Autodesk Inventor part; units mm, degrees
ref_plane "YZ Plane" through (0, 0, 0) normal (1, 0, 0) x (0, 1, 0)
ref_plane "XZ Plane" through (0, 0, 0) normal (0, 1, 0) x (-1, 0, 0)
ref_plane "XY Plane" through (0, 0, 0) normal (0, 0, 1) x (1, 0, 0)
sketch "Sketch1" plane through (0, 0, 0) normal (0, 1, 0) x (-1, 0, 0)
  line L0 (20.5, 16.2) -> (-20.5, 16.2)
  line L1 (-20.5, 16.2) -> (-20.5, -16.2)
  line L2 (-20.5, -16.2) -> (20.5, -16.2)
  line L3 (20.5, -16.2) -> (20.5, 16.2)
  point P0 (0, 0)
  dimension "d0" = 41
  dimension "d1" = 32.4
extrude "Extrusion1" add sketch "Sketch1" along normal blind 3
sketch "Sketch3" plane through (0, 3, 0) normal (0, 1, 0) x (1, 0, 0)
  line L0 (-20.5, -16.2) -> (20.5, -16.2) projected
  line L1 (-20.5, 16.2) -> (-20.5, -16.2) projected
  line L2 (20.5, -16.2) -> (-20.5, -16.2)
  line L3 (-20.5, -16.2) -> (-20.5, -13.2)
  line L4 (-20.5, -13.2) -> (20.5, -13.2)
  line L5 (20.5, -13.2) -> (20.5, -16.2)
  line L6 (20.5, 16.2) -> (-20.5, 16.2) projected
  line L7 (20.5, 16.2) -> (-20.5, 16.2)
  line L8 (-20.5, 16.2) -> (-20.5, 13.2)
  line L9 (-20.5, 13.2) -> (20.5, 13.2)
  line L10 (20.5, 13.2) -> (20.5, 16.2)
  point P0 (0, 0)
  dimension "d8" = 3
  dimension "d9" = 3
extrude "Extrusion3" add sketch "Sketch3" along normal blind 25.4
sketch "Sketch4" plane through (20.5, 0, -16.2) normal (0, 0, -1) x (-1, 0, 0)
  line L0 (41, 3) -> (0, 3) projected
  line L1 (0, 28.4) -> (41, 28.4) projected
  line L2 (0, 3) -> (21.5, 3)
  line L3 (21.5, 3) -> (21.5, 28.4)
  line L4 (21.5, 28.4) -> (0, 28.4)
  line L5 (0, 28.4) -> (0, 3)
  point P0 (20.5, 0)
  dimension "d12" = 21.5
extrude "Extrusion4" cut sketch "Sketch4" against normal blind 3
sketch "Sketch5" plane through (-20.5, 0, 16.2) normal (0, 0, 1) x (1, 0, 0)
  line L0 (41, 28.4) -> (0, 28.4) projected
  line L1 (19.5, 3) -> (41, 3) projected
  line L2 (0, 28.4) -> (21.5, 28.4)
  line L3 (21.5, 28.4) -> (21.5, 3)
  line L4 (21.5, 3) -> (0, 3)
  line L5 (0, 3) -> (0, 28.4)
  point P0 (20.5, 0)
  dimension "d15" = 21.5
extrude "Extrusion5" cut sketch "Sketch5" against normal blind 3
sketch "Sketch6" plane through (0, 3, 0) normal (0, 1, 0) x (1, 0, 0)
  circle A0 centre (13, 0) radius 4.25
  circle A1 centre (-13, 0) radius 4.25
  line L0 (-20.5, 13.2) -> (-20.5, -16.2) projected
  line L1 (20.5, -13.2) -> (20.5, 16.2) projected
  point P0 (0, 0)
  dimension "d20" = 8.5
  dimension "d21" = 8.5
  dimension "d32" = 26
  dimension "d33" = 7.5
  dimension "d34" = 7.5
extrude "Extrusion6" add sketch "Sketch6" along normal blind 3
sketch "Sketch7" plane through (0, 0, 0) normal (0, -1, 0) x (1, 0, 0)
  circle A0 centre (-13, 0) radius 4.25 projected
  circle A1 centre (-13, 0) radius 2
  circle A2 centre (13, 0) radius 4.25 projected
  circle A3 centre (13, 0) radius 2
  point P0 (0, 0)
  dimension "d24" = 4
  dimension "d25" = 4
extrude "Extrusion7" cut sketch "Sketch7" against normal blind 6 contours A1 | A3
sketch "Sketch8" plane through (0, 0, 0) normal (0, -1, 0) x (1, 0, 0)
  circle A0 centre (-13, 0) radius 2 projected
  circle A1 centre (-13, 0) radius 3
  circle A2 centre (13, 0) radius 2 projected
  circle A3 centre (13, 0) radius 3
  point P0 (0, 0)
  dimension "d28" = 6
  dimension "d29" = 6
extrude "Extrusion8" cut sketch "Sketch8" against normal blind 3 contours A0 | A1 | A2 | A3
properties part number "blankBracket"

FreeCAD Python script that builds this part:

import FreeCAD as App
import Part
import Sketcher

V = App.Vector
Q = App.Units.Quantity

doc = App.newDocument("Part")
body = doc.addObject("PartDesign::Body", "Body")

# Sketch on XZ plane
sketch1 = body.newObject("Sketcher::SketchObject", "Sketch")
sketch1.AttachmentSupport = (doc.getObject("XZ_Plane"), [""])
sketch1.MapMode = "FlatFace"
sketch1.addGeometry([
    Part.LineSegment(V(-20.5, -16.2, 0), V(-20.5, 16.2, 0)),
    Part.LineSegment(V(-20.5, 16.2, 0), V(20.5, 16.2, 0)),
    Part.LineSegment(V(20.5, 16.2, 0), V(20.5, -16.2, 0)),
    Part.LineSegment(V(20.5, -16.2, 0), V(-20.5, -16.2, 0)),
], False)
sketch1.addConstraint([
    Sketcher.Constraint("Coincident", 0, 2, 1, 1),
    Sketcher.Constraint("Coincident", 1, 2, 2, 1),
    Sketcher.Constraint("Coincident", 2, 2, 3, 1),
    Sketcher.Constraint("Coincident", 3, 2, 0, 1),
    Sketcher.Constraint("Vertical", 0),
    Sketcher.Constraint("Horizontal", 1),
    Sketcher.Constraint("Vertical", 2),
    Sketcher.Constraint("Horizontal", 3),
    Sketcher.Constraint("Symmetric", 0, 2, 2, 2, -1, 1),
    Sketcher.Constraint("DistanceX", 1, 1, 1, 2, Q("41 mm")),
    Sketcher.Constraint("DistanceY", 0, 1, 0, 2, Q("32.4 mm")),
])
pad1 = body.newObject("PartDesign::Pad", "Pad")
pad1.Profile = sketch1
pad1.Length = 3
pad1.Reversed = True

# Sketch on XZ plane
sketch2 = body.newObject("Sketcher::SketchObject", "Sketch001")
sketch2.AttachmentSupport = (doc.getObject("XZ_Plane"), [""])
sketch2.MapMode = "FlatFace"
sketch2.AttachmentOffset = App.Placement(V(0, 0, -3), App.Rotation())
sketch2.addGeometry([
    Part.LineSegment(V(-20.5, 13.2, 0), V(-20.5, 16.2, 0)),  # 0
    Part.LineSegment(V(-20.5, 16.2, 0), V(20.5, 16.2, 0)),  # 1
    Part.LineSegment(V(20.5, 16.2, 0), V(20.5, 13.2, 0)),  # 2
    Part.LineSegment(V(20.5, 13.2, 0), V(-20.5, 13.2, 0)),  # 3
    Part.LineSegment(V(-20.5, -16.2, 0), V(-20.5, -13.2, 0)),  # 4
    Part.LineSegment(V(-20.5, -13.2, 0), V(20.5, -13.2, 0)),  # 5
    Part.LineSegment(V(20.5, -13.2, 0), V(20.5, -16.2, 0)),  # 6
    Part.LineSegment(V(20.5, -16.2, 0), V(-20.5, -16.2, 0)),  # 7
], False)
sketch2.addConstraint([
    Sketcher.Constraint("Coincident", 0, 2, 1, 1),
    Sketcher.Constraint("Coincident", 1, 2, 2, 1),
    Sketcher.Constraint("Coincident", 2, 2, 3, 1),
    Sketcher.Constraint("Coincident", 3, 2, 0, 1),
    Sketcher.Constraint("Coincident", 4, 2, 5, 1),
    Sketcher.Constraint("Coincident", 5, 2, 6, 1),
    Sketcher.Constraint("Coincident", 6, 2, 7, 1),
    Sketcher.Constraint("Coincident", 7, 2, 4, 1),
    Sketcher.Constraint("Vertical", 0),
    Sketcher.Constraint("Horizontal", 1),
    Sketcher.Constraint("Vertical", 2),
    Sketcher.Constraint("Horizontal", 3),
    Sketcher.Constraint("Vertical", 4),
    Sketcher.Constraint("Horizontal", 5),
    Sketcher.Constraint("Vertical", 6),
    Sketcher.Constraint("Horizontal", 7),
    Sketcher.Constraint("Symmetric", 2, 2, 4, 2, -1, 1),
    Sketcher.Constraint("Symmetric", 0, 2, 6, 2, -1, 1),
    Sketcher.Constraint("Vertical", 3, 2, 4, 2),
    Sketcher.Constraint("DistanceY", 0, 1, 0, 2, Q("3 mm")),
    Sketcher.Constraint("DistanceX", 1, 1, 1, 2, Q("41 mm")),
    Sketcher.Constraint("DistanceY", -1, 1, 0, 2, Q("16.2 mm")),
])
pad2 = body.newObject("PartDesign::Pad", "Pad001")
pad2.Profile = sketch2
pad2.Length = 25.4
pad2.Reversed = True

# Sketch on XY plane
sketch3 = body.newObject("Sketcher::SketchObject", "Sketch002")
sketch3.AttachmentSupport = (doc.getObject("XY_Plane"), [""])
sketch3.MapMode = "FlatFace"
sketch3.AttachmentOffset = App.Placement(V(0, 0, -16.2), App.Rotation())
sketch3.addGeometry([
    Part.LineSegment(V(20.5, 3, 0), V(-1, 3, 0)),
    Part.LineSegment(V(-1, 3, 0), V(-1, 28.4, 0)),
    Part.LineSegment(V(-1, 28.4, 0), V(20.5, 28.4, 0)),
    Part.LineSegment(V(20.5, 28.4, 0), V(20.5, 3, 0)),
], False)
sketch3.addConstraint([
    Sketcher.Constraint("Coincident", 0, 2, 1, 1),
    Sketcher.Constraint("Coincident", 1, 2, 2, 1),
    Sketcher.Constraint("Coincident", 2, 2, 3, 1),
    Sketcher.Constraint("Coincident", 3, 2, 0, 1),
    Sketcher.Constraint("Horizontal", 0),
    Sketcher.Constraint("Vertical", 1),
    Sketcher.Constraint("Horizontal", 2),
    Sketcher.Constraint("Vertical", 3),
    Sketcher.Constraint("DistanceX", 0, 2, 0, 1, Q("21.5 mm")),
    Sketcher.Constraint("DistanceY", 1, 1, 1, 2, Q("25.4 mm")),
    Sketcher.Constraint("DistanceX", 0, 2, -1, 1, Q("1 mm")),
    Sketcher.Constraint("DistanceY", -1, 1, 0, 2, Q("3 mm")),
])
pocket1 = body.newObject("PartDesign::Pocket", "Pocket")
pocket1.Profile = sketch3
pocket1.Length = 3
pocket1.Reversed = True

# Sketch on XY plane
sketch4 = body.newObject("Sketcher::SketchObject", "Sketch003")
sketch4.AttachmentSupport = (doc.getObject("XY_Plane"), [""])
sketch4.MapMode = "FlatFace"
sketch4.AttachmentOffset = App.Placement(V(0, 0, 16.2), App.Rotation())
sketch4.addGeometry([
    Part.LineSegment(V(1, 3, 0), V(1, 28.4, 0)),
    Part.LineSegment(V(1, 28.4, 0), V(-20.5, 28.4, 0)),
    Part.LineSegment(V(-20.5, 28.4, 0), V(-20.5, 3, 0)),
    Part.LineSegment(V(-20.5, 3, 0), V(1, 3, 0)),
], False)
sketch4.addConstraint([
    Sketcher.Constraint("Coincident", 0, 2, 1, 1),
    Sketcher.Constraint("Coincident", 1, 2, 2, 1),
    Sketcher.Constraint("Coincident", 2, 2, 3, 1),
    Sketcher.Constraint("Coincident", 3, 2, 0, 1),
    Sketcher.Constraint("Vertical", 0),
    Sketcher.Constraint("Horizontal", 1),
    Sketcher.Constraint("Vertical", 2),
    Sketcher.Constraint("Horizontal", 3),
    Sketcher.Constraint("DistanceX", 1, 2, 1, 1, Q("21.5 mm")),
    Sketcher.Constraint("DistanceY", 0, 1, 0, 2, Q("25.4 mm")),
    Sketcher.Constraint("DistanceX", -1, 1, 0, 2, Q("1 mm")),
    Sketcher.Constraint("DistanceY", -1, 1, 2, 2, Q("3 mm")),
])
pocket2 = body.newObject("PartDesign::Pocket", "Pocket001")
pocket2.Profile = sketch4
pocket2.Length = 3

# Sketch on XZ plane
sketch5 = body.newObject("Sketcher::SketchObject", "Sketch004")
sketch5.AttachmentSupport = (doc.getObject("XZ_Plane"), [""])
sketch5.MapMode = "FlatFace"
sketch5.AttachmentOffset = App.Placement(V(0, 0, -3), App.Rotation())
sketch5.addGeometry([
    Part.Circle(V(13, 0, 0), V(0, 0, 1), 4.25),
    Part.Circle(V(-13, 0, 0), V(0, 0, 1), 4.25),
], False)
sketch5.addConstraint([
    Sketcher.Constraint("Equal", 0, 1),
    Sketcher.Constraint("Symmetric", 0, 3, 1, 3, -1, 1),
    Sketcher.Constraint("PointOnObject", 0, 3, -1),
    Sketcher.Constraint("Diameter", 0, Q("8.5 mm")),
    Sketcher.Constraint("DistanceX", 1, 3, 0, 3, Q("26 mm")),
])
pad3 = body.newObject("PartDesign::Pad", "Pad002")
pad3.Profile = sketch5
pad3.Length = 3
pad3.Reversed = True

# Sketch on XZ plane
sketch6 = body.newObject("Sketcher::SketchObject", "Sketch005")
sketch6.AttachmentSupport = (doc.getObject("XZ_Plane"), [""])
sketch6.MapMode = "FlatFace"
sketch6.addGeometry([
    Part.Circle(V(-13, 0, 0), V(0, 0, 1), 2),
    Part.Circle(V(13, 0, 0), V(0, 0, 1), 2),
], False)
sketch6.addConstraint([
    Sketcher.Constraint("Equal", 0, 1),
    Sketcher.Constraint("Symmetric", 0, 3, 1, 3, -1, 1),
    Sketcher.Constraint("PointOnObject", 0, 3, -1),
    Sketcher.Constraint("Diameter", 0, Q("4 mm")),
    Sketcher.Constraint("DistanceX", 0, 3, -1, 1, Q("13 mm")),
])
pocket3 = body.newObject("PartDesign::Pocket", "Pocket002")
pocket3.Profile = sketch6
pocket3.Length = 6

# Sketch on XZ plane
sketch7 = body.newObject("Sketcher::SketchObject", "Sketch006")
sketch7.AttachmentSupport = (doc.getObject("XZ_Plane"), [""])
sketch7.MapMode = "FlatFace"
sketch7.addGeometry([
    Part.Circle(V(-13, 0, 0), V(0, 0, 1), 3),
    Part.Circle(V(13, 0, 0), V(0, 0, 1), 3),
], False)
sketch7.addConstraint([
    Sketcher.Constraint("Equal", 0, 1),
    Sketcher.Constraint("Symmetric", 0, 3, 1, 3, -1, 1),
    Sketcher.Constraint("PointOnObject", 0, 3, -1),
    Sketcher.Constraint("Diameter", 0, Q("6 mm")),
    Sketcher.Constraint("DistanceX", 0, 3, -1, 1, Q("13 mm")),
])
pocket4 = body.newObject("PartDesign::Pocket", "Pocket003")
pocket4.Profile = sketch7
pocket4.Length = 3

doc.recompute()
